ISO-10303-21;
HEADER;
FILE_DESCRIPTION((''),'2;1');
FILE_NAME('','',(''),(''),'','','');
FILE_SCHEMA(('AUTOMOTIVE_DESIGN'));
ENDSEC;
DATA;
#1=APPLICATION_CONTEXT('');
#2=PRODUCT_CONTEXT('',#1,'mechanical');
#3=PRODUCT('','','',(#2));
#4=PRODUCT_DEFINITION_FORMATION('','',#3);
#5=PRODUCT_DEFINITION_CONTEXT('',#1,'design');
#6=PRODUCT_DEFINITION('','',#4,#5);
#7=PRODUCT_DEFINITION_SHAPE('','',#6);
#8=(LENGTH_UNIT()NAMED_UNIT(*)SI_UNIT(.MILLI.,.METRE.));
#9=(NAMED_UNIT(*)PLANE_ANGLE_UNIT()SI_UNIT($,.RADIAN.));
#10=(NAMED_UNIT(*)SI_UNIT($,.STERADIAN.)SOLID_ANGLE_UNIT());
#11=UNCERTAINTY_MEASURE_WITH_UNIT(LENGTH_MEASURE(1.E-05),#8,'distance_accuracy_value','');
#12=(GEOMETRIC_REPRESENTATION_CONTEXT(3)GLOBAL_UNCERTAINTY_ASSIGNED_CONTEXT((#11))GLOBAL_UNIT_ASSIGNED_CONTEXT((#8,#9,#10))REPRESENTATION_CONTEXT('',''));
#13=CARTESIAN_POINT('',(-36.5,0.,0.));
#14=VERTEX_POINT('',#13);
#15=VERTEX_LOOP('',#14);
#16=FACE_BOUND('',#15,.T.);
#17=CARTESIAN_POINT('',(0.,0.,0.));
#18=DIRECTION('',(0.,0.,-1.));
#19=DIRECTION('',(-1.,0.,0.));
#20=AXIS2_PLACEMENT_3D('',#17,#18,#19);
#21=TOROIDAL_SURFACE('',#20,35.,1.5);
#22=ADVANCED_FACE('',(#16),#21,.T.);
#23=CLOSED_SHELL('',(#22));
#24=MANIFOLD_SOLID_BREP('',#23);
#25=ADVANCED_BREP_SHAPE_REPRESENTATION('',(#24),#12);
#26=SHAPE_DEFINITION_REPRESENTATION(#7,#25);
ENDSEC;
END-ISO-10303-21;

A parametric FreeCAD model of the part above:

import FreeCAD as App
import Part
import Sketcher

doc = App.newDocument("Part")
body = doc.addObject("PartDesign::Body", "Body")

# Sketch on XZ plane
sketch1 = body.newObject("Sketcher::SketchObject", "Sketch")
sketch1.AttachmentSupport = (doc.getObject("XZ_Plane"), [""])
sketch1.MapMode = "FlatFace"
sketch1.addGeometry(Part.Circle(App.Vector(35, 0, 0), App.Vector(0, 0, 1), 1.5), False)
sketch1.addConstraint(Sketcher.Constraint("PointOnObject", 0, 3, -1))
sketch1.addConstraint(Sketcher.Constraint("Diameter", 0, 3.0))
sketch1.addConstraint(Sketcher.Constraint("DistanceX", -1, 1, 0, 3, 35.0))
revolution = body.newObject("PartDesign::Revolution", "Revolution")
revolution.Profile = sketch1
revolution.ReferenceAxis = (sketch1, ["V_Axis"])
revolution.Angle = 360

doc.recompute()
